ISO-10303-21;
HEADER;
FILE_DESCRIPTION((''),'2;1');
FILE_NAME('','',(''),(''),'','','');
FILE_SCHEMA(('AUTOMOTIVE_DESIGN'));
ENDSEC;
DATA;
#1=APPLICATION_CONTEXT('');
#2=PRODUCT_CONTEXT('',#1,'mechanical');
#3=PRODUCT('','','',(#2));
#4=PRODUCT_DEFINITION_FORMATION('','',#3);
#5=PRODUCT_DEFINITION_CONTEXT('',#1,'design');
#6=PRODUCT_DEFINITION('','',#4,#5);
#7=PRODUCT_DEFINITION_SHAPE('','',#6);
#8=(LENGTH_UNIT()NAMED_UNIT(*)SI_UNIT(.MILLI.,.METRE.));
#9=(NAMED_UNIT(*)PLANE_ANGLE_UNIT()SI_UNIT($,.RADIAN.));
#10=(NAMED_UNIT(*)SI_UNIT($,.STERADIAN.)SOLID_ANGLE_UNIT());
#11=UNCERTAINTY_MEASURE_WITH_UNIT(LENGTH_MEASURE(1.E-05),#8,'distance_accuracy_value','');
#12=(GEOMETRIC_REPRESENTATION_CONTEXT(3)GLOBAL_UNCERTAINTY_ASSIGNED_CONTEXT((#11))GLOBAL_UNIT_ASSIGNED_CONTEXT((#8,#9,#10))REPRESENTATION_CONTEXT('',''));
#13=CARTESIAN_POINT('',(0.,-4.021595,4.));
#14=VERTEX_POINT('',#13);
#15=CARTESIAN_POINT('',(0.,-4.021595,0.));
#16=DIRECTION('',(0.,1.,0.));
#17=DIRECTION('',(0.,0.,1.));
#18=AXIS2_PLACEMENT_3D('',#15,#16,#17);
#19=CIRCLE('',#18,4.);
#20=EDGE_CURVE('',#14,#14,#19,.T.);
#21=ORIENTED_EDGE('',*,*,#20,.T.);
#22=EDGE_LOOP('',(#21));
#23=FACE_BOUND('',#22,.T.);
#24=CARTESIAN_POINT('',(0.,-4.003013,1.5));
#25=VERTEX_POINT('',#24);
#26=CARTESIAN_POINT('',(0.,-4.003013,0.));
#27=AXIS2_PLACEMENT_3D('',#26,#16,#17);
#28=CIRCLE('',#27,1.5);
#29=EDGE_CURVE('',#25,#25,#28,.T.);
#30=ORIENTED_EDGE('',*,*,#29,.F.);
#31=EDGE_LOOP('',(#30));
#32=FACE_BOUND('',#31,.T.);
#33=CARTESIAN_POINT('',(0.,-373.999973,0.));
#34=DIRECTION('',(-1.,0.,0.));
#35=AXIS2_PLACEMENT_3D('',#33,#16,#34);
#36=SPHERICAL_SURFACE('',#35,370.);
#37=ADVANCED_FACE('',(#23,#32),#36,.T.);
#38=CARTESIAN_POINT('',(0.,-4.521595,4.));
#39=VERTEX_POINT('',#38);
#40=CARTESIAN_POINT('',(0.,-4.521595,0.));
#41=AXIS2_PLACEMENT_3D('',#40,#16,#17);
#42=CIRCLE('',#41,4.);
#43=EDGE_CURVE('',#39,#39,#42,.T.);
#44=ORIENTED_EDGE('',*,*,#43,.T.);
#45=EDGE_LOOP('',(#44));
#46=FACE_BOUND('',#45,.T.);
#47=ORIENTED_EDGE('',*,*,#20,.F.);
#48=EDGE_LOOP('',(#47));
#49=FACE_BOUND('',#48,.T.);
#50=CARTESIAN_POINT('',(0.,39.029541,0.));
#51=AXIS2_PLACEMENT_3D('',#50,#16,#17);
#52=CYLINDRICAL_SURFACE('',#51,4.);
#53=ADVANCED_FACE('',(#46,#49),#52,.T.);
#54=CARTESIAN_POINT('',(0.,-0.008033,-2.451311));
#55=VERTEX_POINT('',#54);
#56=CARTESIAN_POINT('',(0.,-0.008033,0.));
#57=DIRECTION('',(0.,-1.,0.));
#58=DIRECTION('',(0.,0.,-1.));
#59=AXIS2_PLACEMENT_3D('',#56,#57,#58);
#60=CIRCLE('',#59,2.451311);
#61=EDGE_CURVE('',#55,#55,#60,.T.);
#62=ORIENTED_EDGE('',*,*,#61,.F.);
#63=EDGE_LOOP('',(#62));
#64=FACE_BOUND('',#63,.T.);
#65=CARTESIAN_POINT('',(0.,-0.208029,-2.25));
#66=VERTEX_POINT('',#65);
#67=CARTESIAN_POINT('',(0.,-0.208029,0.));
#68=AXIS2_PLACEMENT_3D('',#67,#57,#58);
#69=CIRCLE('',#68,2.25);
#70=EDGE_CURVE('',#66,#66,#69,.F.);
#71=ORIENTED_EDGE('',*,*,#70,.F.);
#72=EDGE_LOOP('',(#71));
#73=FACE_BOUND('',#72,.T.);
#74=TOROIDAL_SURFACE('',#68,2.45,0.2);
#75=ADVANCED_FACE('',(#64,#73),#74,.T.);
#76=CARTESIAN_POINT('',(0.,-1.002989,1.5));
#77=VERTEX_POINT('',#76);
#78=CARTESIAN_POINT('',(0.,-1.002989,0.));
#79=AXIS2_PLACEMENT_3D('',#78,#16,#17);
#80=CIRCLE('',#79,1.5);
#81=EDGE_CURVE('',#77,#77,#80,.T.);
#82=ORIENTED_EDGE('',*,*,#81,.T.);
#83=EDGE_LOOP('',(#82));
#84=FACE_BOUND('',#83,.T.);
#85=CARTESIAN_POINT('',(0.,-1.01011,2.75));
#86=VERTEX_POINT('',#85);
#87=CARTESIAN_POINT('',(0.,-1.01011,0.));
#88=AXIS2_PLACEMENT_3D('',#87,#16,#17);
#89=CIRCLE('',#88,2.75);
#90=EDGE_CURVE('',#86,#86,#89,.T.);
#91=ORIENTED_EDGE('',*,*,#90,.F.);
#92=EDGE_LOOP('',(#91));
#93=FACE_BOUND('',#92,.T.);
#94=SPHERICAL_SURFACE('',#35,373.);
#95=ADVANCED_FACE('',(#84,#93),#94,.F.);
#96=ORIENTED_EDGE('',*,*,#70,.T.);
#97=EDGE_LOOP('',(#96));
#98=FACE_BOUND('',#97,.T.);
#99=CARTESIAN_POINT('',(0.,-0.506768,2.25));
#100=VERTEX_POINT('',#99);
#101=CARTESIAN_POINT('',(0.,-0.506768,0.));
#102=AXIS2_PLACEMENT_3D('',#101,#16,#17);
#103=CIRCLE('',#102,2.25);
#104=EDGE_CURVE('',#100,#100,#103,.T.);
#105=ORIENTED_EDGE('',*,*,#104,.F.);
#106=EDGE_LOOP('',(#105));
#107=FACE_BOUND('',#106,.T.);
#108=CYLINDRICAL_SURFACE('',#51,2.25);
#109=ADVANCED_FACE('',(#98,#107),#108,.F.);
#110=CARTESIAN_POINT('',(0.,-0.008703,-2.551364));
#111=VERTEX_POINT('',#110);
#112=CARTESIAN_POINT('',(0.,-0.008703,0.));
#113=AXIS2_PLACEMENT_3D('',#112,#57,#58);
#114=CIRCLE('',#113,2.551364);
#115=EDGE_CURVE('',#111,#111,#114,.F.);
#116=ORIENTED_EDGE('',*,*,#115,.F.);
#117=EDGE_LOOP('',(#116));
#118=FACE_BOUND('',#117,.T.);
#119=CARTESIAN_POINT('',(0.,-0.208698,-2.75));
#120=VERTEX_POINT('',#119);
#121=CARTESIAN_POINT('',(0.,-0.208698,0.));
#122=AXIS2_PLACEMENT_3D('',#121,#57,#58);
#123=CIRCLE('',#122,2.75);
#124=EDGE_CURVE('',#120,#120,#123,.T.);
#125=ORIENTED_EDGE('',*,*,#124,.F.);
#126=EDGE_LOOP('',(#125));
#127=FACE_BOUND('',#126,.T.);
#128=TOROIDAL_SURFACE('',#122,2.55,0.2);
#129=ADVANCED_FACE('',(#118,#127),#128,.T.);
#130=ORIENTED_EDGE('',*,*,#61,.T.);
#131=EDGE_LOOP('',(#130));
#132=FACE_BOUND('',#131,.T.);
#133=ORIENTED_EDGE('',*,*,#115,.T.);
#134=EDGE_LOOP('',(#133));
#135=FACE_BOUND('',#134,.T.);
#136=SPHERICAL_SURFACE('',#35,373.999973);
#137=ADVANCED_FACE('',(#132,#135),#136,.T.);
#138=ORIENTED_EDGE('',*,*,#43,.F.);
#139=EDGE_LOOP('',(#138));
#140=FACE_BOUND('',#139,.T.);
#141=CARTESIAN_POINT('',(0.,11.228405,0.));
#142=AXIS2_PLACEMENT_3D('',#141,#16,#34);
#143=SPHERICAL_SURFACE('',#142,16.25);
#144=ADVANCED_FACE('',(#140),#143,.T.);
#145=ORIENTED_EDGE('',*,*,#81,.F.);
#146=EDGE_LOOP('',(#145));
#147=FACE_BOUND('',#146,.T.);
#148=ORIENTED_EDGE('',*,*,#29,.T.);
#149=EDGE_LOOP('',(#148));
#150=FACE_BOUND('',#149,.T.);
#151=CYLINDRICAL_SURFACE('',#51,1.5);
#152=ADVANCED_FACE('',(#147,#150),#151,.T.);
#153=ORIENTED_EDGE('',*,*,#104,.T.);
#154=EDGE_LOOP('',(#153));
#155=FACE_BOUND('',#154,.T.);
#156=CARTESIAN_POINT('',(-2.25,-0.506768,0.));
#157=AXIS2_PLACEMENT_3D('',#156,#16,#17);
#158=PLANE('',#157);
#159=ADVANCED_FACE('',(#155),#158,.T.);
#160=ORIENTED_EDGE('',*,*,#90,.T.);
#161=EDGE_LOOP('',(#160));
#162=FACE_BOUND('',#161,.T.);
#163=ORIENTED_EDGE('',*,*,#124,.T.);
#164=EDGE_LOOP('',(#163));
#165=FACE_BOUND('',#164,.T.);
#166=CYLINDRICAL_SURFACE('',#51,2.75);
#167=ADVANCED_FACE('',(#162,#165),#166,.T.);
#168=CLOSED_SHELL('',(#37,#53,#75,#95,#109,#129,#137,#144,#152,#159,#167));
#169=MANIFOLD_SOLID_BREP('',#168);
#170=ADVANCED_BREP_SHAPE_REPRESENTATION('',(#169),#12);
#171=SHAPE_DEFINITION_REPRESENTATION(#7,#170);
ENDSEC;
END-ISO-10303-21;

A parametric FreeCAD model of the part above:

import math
import FreeCAD as App
import Part
import Sketcher
Q = App.Units.Quantity


def edges_at(feature, points):
    """Names of the edges that pass closest to the given points."""
    edges = feature.Shape.Edges
    near = lambda p: min(range(len(edges)), key=lambda i: edges[i].distToShape(Part.Vertex(*p))[0])
    return sorted({f"Edge{near(p) + 1}" for p in points})

doc = App.newDocument("Part")
body = doc.addObject("PartDesign::Body", "Body")

# Sketch on XY plane
sketch1 = body.newObject("Sketcher::SketchObject", "Sketch")
sketch1.AttachmentSupport = (doc.getObject("XY_Plane"), [""])
sketch1.MapMode = "FlatFace"
sketch1.addGeometry([
    Part.LineSegment(App.Vector(-1.5, -1.002989, 0), App.Vector(-1.5, -4.003013, 0)),  # 0
    Part.ArcOfCircle(Part.Circle(App.Vector(0.000001, -374.000032, 0), App.Vector(0, 0, 1), 370.000059), math.radians(90.232281), math.radians(90.619426)),  # 1
    Part.LineSegment(App.Vector(-4, -4.021595, 0), App.Vector(-4, -4.521595, 0)),  # 2
    Part.ArcOfCircle(Part.Circle(App.Vector(0, 11.228405, 0), App.Vector(0, 0, 1), 16.25), math.radians(-104.250033), math.radians(-90)),  # 3
    Part.LineSegment(App.Vector(0, -5.021595, 0), App.Vector(0, -0.506768, 0)),  # 4
    Part.LineSegment(App.Vector(0, -0.506768, 0), App.Vector(-2.25, -0.506768, 0)),  # 5
    Part.LineSegment(App.Vector(-2.25, -0.506768, 0), App.Vector(-2.25, -0.006768, 0)),  # 6
    Part.ArcOfCircle(Part.Circle(App.Vector(0.000001, -374.000103, 0), App.Vector(0, 0, 1), 374.000103), math.radians(90.344696), math.radians(90.421296)),  # 7
    Part.LineSegment(App.Vector(-2.75, -0.01011, 0), App.Vector(-2.75, -1.01011, 0)),  # 8
    Part.ArcOfCircle(Part.Circle(App.Vector(0, -373.999882, 0), App.Vector(0, 0, 1), 372.999909), math.radians(90.230413), math.radians(90.422426)),  # 9
], False)
sketch1.addConstraint([
    Sketcher.Constraint("Coincident", 0, 2, 1, 1),
    Sketcher.Constraint("Coincident", 1, 2, 2, 1),
    Sketcher.Constraint("Coincident", 2, 2, 3, 1),
    Sketcher.Constraint("Coincident", 3, 2, 4, 1),
    Sketcher.Constraint("Coincident", 4, 2, 5, 1),
    Sketcher.Constraint("Coincident", 5, 2, 6, 1),
    Sketcher.Constraint("Coincident", 6, 2, 7, 1),
    Sketcher.Constraint("Coincident", 7, 2, 8, 1),
    Sketcher.Constraint("Coincident", 8, 2, 9, 2),
    Sketcher.Constraint("Coincident", 9, 1, 0, 1),
    Sketcher.Constraint("Vertical", 0),
    Sketcher.Constraint("Vertical", 2),
    Sketcher.Constraint("Vertical", 4),
    Sketcher.Constraint("Horizontal", 5),
    Sketcher.Constraint("Vertical", 6),
    Sketcher.Constraint("Vertical", 8),
    Sketcher.Constraint("PointOnObject", 1, 3, -2),
    Sketcher.Constraint("PointOnObject", 3, 3, -2),
    Sketcher.Constraint("PointOnObject", 7, 3, -2),
    Sketcher.Constraint("PointOnObject", 9, 3, -2),
    Sketcher.Constraint("PointOnObject", 3, 2, -2),
    Sketcher.Constraint("Equal", 2, 6),
    Sketcher.Constraint("DistanceY", 8, 2, 8, 1, Q("1 mm")),
    Sketcher.Constraint("Radius", 3, Q("16.25 mm")),
    Sketcher.Constraint("DistanceY", 2, 2, 2, 1, Q("0.5 mm")),
    Sketcher.Constraint("DistanceX", 2, 2, -1, 1, Q("4 mm")),
    Sketcher.Constraint("DistanceX", 5, 2, 5, 1, Q("2.25 mm")),
    Sketcher.Constraint("DistanceX", 0, 2, -1, 1, Q("1.5 mm")),
    Sketcher.Constraint("DistanceX", 8, 2, 5, 2, Q("0.5 mm")),
    Sketcher.Constraint("Radius", 1, Q("370.000059 mm")),
    Sketcher.Constraint("Radius", 9, Q("372.999909 mm")),
    Sketcher.Constraint("Radius", 7, Q("374.000103 mm")),
    Sketcher.Constraint("DistanceY", 0, 2, 0, 1, Q("3.000024 mm")),
    Sketcher.Constraint("DistanceY", 9, 3, -1, 1, Q("373.999882 mm")),
])
revolution = body.newObject("PartDesign::Revolution", "Revolution")
revolution.Profile = sketch1
revolution.ReferenceAxis = (sketch1, ["V_Axis"])
revolution.Angle = 360
doc.recompute()

fillet = body.newObject("PartDesign::Fillet", "Fillet")
fillet.Base = (revolution, edges_at(revolution, [(0, -0.01, -2.75), (0, -0.007, -2.25)]))
fillet.Radius = 0.2

doc.recompute()
